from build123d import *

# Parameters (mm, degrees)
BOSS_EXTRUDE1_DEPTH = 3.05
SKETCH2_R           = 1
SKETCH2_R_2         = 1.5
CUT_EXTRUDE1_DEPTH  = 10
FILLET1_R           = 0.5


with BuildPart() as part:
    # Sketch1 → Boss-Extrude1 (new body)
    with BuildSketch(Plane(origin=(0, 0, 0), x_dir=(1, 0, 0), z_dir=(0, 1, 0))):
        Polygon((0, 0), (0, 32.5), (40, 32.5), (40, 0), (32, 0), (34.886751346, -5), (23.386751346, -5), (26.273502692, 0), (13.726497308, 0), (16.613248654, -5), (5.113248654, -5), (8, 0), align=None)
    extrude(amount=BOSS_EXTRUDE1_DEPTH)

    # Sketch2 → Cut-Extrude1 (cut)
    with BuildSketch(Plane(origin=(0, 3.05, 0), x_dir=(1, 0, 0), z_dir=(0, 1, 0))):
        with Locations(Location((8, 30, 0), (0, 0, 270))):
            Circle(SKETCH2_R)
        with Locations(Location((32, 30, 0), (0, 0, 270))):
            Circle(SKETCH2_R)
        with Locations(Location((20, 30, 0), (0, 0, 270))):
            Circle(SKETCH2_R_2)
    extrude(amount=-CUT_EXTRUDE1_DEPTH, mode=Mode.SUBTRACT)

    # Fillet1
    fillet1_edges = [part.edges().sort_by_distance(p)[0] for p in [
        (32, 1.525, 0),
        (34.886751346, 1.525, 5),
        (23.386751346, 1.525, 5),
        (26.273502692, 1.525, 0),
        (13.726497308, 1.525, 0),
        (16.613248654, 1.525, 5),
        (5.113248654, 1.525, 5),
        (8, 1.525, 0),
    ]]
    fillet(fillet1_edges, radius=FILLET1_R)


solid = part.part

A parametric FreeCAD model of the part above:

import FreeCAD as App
import Part
import Sketcher
Q = App.Units.Quantity


def edges_at(feature, points):
    """Names of the edges that pass closest to the given points."""
    edges = feature.Shape.Edges
    near = lambda p: min(range(len(edges)), key=lambda i: edges[i].distToShape(Part.Vertex(*p))[0])
    return sorted({f"Edge{near(p) + 1}" for p in points})

doc = App.newDocument("Part")
body = doc.addObject("PartDesign::Body", "Body")

# Sketch on XZ plane
sketch1 = body.newObject("Sketcher::SketchObject", "Sketch")
sketch1.AttachmentSupport = (doc.getObject("XZ_Plane"), [""])
sketch1.MapMode = "FlatFace"
sketch1.addGeometry(Part.LineSegment(App.Vector(0, -32, 0), App.Vector(0, 0, 0)), False)
sketch1.addGeometry(Part.LineSegment(App.Vector(0, 0, 0), App.Vector(8, 0, 0)), False)
sketch1.addGeometry(Part.LineSegment(App.Vector(8, 0, 0), App.Vector(5, 5, 0)), False)
sketch1.addGeometry(Part.LineSegment(App.Vector(5, 5, 0), App.Vector(17, 5, 0)), False)
sketch1.addGeometry(Part.LineSegment(App.Vector(17, 5, 0), App.Vector(14, 0, 0)), False)
sketch1.addGeometry(Part.LineSegment(App.Vector(14, 0, 0), App.Vector(26, 0, 0)), False)
sketch1.addGeometry(Part.LineSegment(App.Vector(26, 0, 0), App.Vector(23, 5, 0)), False)
sketch1.addGeometry(Part.LineSegment(App.Vector(23, 5, 0), App.Vector(35, 5, 0)), False)
sketch1.addGeometry(Part.LineSegment(App.Vector(35, 5, 0), App.Vector(32, 0, 0)), False)
sketch1.addGeometry(Part.LineSegment(App.Vector(32, 0, 0), App.Vector(40, 0, 0)), False)
sketch1.addGeometry(Part.LineSegment(App.Vector(40, 0, 0), App.Vector(40, -32, 0)), False)
sketch1.addGeometry(Part.LineSegment(App.Vector(40, -32, 0), App.Vector(0, -32, 0)), False)
sketch1.addConstraint(Sketcher.Constraint("Coincident", 0, 2, 1, 1))
sketch1.addConstraint(Sketcher.Constraint("Coincident", 1, 2, 2, 1))
sketch1.addConstraint(Sketcher.Constraint("Coincident", 2, 2, 3, 1))
sketch1.addConstraint(Sketcher.Constraint("Coincident", 3, 2, 4, 1))
sketch1.addConstraint(Sketcher.Constraint("Coincident", 4, 2, 5, 1))
sketch1.addConstraint(Sketcher.Constraint("Coincident", 5, 2, 6, 1))
sketch1.addConstraint(Sketcher.Constraint("Coincident", 6, 2, 7, 1))
sketch1.addConstraint(Sketcher.Constraint("Coincident", 7, 2, 8, 1))
sketch1.addConstraint(Sketcher.Constraint("Coincident", 8, 2, 9, 1))
sketch1.addConstraint(Sketcher.Constraint("Coincident", 9, 2, 10, 1))
sketch1.addConstraint(Sketcher.Constraint("Coincident", 10, 2, 11, 1))
sketch1.addConstraint(Sketcher.Constraint("Coincident", 11, 2, 0, 1))
sketch1.addConstraint(Sketcher.Constraint("Vertical", 0))
sketch1.addConstraint(Sketcher.Constraint("Horizontal", 1))
sketch1.addConstraint(Sketcher.Constraint("Horizontal", 3))
sketch1.addConstraint(Sketcher.Constraint("Horizontal", 5))
sketch1.addConstraint(Sketcher.Constraint("Horizontal", 7))
sketch1.addConstraint(Sketcher.Constraint("Horizontal", 9))
sketch1.addConstraint(Sketcher.Constraint("Vertical", 10))
sketch1.addConstraint(Sketcher.Constraint("Horizontal", 11))
sketch1.addConstraint(Sketcher.Constraint("Coincident", 0, 2, -1, 1))
sketch1.addConstraint(Sketcher.Constraint("PointOnObject", 4, 2, -1))
sketch1.addConstraint(Sketcher.Constraint("PointOnObject", 8, 2, -1))
sketch1.addConstraint(Sketcher.Constraint("Parallel", 2, 6))
sketch1.addConstraint(Sketcher.Constraint("Parallel", 4, 8))
sketch1.addConstraint(Sketcher.Constraint("Horizontal", 3, 2, 6, 2))
sketch1.addConstraint(Sketcher.Constraint("Equal", 3, 7))
sketch1.addConstraint(Sketcher.Constraint("Equal", 1, 9))
sketch1.addConstraint(Sketcher.Constraint("Equal", 2, 4))
sketch1.addConstraint(Sketcher.Constraint("DistanceX", 1, 1, 1, 2, Q("8 mm")))
sketch1.addConstraint(Sketcher.Constraint("DistanceX", 11, 2, 11, 1, Q("40 mm")))
sketch1.addConstraint(Sketcher.Constraint("Angle", 2, Q("120 deg")))
sketch1.addConstraint(Sketcher.Constraint("DistanceX", 3, 1, 3, 2, Q("11.5 mm")))
sketch1.addConstraint(Sketcher.Constraint("DistanceY", 0, 1, 0, 2, Q("32.5 mm")))
sketch1.addConstraint(Sketcher.Constraint("DistanceY", -1, 1, 2, 2, Q("5 mm")))
pad1 = body.newObject("PartDesign::Pad", "Pad")
pad1.Profile = sketch1
pad1.Length = 3.05
pad1.Reversed = True

# Sketch on XZ plane
sketch2 = body.newObject("Sketcher::SketchObject", "Sketch001")
sketch2.AttachmentSupport = (doc.getObject("XZ_Plane"), [""])
sketch2.MapMode = "FlatFace"
sketch2.AttachmentOffset = App.Placement(App.Vector(0, 0, -3.05), App.Rotation())
sketch2.addGeometry(Part.Circle(App.Vector(8, -30, 0), App.Vector(0, 0, 1), 1), False)
sketch2.addGeometry(Part.Circle(App.Vector(32, -30, 0), App.Vector(0, 0, 1), 1), False)
sketch2.addGeometry(Part.Circle(App.Vector(20, -30, 0), App.Vector(0, 0, 1), 1.5), False)
sketch2.addConstraint(Sketcher.Constraint("Equal", 0, 1))
sketch2.addConstraint(Sketcher.Constraint("Horizontal", 0, 3, 1, 3))
sketch2.addConstraint(Sketcher.Constraint("Horizontal", 1, 3, 2, 3))
sketch2.addConstraint(Sketcher.Constraint("Diameter", 0, Q("2 mm")))
sketch2.addConstraint(Sketcher.Constraint("Diameter", 2, Q("3 mm")))
sketch2.addConstraint(Sketcher.Constraint("DistanceX", -1, 1, 0, 3, Q("8 mm")))
sketch2.addConstraint(Sketcher.Constraint("DistanceY", 0, 3, -1, 1, Q("30 mm")))
sketch2.addConstraint(Sketcher.Constraint("DistanceX", -1, 1, 1, 3, Q("32 mm")))
sketch2.addConstraint(Sketcher.Constraint("DistanceX", -1, 1, 2, 3, Q("20 mm")))
pocket1 = body.newObject("PartDesign::Pocket", "Pocket")
pocket1.Profile = sketch2
pocket1.Length = 10
pocket1.Reversed = True
doc.recompute()

fillet = body.newObject("PartDesign::Fillet", "Fillet")
fillet.Base = (pocket1, edges_at(pocket1, [
    (32, 1.525, 0),
    (34.887, 1.525, 5),
    (23.387, 1.525, 5),
    (26.274, 1.525, 0),
    (13.726, 1.525, 0),
    (16.613, 1.525, 5),
    (5.113, 1.525, 5),
    (8, 1.525, 0),
]))
fillet.Radius = 0.5

doc.recompute()
